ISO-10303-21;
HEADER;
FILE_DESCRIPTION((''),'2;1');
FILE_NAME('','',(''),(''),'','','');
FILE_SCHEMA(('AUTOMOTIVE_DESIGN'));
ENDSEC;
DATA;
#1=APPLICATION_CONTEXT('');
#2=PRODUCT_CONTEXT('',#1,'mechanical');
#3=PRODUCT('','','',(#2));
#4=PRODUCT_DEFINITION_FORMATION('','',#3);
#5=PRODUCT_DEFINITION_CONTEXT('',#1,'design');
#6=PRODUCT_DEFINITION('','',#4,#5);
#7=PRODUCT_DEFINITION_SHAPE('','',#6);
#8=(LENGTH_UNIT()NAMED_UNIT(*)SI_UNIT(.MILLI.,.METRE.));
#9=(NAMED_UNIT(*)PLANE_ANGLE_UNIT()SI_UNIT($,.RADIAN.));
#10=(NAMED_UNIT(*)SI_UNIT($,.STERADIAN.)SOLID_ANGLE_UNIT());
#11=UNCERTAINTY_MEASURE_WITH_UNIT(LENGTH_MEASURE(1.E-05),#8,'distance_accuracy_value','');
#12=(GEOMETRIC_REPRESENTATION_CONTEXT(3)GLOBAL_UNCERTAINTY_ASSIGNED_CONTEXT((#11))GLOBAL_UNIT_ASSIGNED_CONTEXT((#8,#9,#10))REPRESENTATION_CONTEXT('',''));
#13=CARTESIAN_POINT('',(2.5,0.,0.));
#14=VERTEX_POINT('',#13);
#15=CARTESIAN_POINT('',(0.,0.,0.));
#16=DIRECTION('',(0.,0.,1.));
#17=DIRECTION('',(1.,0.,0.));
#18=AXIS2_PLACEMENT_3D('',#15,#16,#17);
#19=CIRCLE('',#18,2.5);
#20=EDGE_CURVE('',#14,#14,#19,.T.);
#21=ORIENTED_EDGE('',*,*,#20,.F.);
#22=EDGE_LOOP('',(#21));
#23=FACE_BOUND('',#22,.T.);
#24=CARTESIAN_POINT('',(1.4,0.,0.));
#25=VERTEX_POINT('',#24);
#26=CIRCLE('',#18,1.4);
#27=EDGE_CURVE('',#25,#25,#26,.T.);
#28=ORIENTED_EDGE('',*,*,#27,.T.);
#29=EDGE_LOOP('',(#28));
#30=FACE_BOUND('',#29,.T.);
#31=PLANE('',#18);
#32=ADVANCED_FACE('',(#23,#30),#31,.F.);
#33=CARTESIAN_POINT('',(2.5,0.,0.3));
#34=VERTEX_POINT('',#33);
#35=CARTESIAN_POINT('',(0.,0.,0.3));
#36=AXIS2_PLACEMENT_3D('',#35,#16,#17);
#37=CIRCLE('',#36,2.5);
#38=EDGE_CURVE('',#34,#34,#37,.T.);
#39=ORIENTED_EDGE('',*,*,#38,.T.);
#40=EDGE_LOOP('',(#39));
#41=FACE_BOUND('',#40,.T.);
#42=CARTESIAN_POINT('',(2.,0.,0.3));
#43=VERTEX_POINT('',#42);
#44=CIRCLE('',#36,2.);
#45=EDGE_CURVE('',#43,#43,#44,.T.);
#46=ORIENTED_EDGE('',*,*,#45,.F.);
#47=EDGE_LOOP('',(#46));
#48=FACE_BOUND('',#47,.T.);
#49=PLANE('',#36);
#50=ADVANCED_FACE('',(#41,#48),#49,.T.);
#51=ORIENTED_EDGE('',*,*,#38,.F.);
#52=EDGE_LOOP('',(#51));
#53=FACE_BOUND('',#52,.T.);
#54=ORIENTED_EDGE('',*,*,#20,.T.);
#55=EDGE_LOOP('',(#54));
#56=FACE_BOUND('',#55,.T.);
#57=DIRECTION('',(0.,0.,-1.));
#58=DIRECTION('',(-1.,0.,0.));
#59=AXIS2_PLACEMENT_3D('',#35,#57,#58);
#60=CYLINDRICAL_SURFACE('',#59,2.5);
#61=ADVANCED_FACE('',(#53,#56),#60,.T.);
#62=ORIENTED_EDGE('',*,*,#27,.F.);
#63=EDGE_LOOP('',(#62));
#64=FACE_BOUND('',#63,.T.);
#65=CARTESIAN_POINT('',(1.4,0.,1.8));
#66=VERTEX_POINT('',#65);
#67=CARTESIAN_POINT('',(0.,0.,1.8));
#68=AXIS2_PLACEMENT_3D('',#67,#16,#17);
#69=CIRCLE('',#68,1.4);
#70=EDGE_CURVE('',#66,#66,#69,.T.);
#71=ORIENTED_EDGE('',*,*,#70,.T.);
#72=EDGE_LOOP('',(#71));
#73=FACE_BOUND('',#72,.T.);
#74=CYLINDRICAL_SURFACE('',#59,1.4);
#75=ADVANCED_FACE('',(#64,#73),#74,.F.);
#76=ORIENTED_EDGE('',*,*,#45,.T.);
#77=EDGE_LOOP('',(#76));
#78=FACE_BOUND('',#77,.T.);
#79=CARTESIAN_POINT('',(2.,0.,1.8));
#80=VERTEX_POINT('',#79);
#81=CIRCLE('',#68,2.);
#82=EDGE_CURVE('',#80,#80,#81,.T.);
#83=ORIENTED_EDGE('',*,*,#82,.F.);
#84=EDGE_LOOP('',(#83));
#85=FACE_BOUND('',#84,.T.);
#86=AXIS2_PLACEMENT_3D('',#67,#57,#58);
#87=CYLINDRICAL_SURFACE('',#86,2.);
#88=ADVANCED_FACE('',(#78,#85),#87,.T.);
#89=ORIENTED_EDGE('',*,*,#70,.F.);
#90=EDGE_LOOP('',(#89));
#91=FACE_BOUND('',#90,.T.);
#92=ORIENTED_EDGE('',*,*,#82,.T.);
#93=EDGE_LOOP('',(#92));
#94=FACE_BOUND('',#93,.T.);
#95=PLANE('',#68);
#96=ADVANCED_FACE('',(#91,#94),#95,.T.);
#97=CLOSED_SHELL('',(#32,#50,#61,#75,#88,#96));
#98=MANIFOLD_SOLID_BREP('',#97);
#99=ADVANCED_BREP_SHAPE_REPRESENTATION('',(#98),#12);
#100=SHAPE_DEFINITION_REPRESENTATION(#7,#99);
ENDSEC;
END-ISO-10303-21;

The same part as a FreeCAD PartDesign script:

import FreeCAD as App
import Part
import Sketcher

V = App.Vector

doc = App.newDocument("Part")
body = doc.addObject("PartDesign::Body", "Body")

sketch1 = body.newObject("Sketcher::SketchObject", "Sketch")
sketch1.AttachmentSupport = (doc.getObject("XY_Plane"), [""])
sketch1.MapMode = "FlatFace"
sketch1.addGeometry([
    Part.Circle(V(0, 0, 0), V(0, 0, 1), 2.5),
    Part.Circle(V(0, 0, 0), V(0, 0, 1), 1.4),
], False)
sketch1.addConstraint([
    Sketcher.Constraint("Coincident", 0, 3, -1, 1),
    Sketcher.Constraint("Coincident", 1, 3, -1, 1),
    Sketcher.Constraint("Diameter", 0, 5.0),
    Sketcher.Constraint("Diameter", 1, 2.8),
])
pad1 = body.newObject("PartDesign::Pad", "Pad")
pad1.Profile = sketch1
pad1.Length = 0.3

sketch2 = body.newObject("Sketcher::SketchObject", "Sketch001")
sketch2.AttachmentSupport = (doc.getObject("XY_Plane"), [""])
sketch2.MapMode = "FlatFace"
sketch2.AttachmentOffset = App.Placement(V(0, 0, 0.3), App.Rotation())
sketch2.addGeometry([
    Part.Circle(V(0, 0, 0), V(0, 0, 1), 2),
    Part.Circle(V(0, 0, 0), V(0, 0, 1), 1.4),
], False)
sketch2.addConstraint([
    Sketcher.Constraint("Coincident", 0, 3, -1, 1),
    Sketcher.Constraint("Coincident", 1, 3, -1, 1),
    Sketcher.Constraint("Diameter", 0, 4.0),
    Sketcher.Constraint("Diameter", 1, 2.8),
])
pad2 = body.newObject("PartDesign::Pad", "Pad001")
pad2.Profile = sketch2
pad2.Length = 1.5

doc.recompute()
